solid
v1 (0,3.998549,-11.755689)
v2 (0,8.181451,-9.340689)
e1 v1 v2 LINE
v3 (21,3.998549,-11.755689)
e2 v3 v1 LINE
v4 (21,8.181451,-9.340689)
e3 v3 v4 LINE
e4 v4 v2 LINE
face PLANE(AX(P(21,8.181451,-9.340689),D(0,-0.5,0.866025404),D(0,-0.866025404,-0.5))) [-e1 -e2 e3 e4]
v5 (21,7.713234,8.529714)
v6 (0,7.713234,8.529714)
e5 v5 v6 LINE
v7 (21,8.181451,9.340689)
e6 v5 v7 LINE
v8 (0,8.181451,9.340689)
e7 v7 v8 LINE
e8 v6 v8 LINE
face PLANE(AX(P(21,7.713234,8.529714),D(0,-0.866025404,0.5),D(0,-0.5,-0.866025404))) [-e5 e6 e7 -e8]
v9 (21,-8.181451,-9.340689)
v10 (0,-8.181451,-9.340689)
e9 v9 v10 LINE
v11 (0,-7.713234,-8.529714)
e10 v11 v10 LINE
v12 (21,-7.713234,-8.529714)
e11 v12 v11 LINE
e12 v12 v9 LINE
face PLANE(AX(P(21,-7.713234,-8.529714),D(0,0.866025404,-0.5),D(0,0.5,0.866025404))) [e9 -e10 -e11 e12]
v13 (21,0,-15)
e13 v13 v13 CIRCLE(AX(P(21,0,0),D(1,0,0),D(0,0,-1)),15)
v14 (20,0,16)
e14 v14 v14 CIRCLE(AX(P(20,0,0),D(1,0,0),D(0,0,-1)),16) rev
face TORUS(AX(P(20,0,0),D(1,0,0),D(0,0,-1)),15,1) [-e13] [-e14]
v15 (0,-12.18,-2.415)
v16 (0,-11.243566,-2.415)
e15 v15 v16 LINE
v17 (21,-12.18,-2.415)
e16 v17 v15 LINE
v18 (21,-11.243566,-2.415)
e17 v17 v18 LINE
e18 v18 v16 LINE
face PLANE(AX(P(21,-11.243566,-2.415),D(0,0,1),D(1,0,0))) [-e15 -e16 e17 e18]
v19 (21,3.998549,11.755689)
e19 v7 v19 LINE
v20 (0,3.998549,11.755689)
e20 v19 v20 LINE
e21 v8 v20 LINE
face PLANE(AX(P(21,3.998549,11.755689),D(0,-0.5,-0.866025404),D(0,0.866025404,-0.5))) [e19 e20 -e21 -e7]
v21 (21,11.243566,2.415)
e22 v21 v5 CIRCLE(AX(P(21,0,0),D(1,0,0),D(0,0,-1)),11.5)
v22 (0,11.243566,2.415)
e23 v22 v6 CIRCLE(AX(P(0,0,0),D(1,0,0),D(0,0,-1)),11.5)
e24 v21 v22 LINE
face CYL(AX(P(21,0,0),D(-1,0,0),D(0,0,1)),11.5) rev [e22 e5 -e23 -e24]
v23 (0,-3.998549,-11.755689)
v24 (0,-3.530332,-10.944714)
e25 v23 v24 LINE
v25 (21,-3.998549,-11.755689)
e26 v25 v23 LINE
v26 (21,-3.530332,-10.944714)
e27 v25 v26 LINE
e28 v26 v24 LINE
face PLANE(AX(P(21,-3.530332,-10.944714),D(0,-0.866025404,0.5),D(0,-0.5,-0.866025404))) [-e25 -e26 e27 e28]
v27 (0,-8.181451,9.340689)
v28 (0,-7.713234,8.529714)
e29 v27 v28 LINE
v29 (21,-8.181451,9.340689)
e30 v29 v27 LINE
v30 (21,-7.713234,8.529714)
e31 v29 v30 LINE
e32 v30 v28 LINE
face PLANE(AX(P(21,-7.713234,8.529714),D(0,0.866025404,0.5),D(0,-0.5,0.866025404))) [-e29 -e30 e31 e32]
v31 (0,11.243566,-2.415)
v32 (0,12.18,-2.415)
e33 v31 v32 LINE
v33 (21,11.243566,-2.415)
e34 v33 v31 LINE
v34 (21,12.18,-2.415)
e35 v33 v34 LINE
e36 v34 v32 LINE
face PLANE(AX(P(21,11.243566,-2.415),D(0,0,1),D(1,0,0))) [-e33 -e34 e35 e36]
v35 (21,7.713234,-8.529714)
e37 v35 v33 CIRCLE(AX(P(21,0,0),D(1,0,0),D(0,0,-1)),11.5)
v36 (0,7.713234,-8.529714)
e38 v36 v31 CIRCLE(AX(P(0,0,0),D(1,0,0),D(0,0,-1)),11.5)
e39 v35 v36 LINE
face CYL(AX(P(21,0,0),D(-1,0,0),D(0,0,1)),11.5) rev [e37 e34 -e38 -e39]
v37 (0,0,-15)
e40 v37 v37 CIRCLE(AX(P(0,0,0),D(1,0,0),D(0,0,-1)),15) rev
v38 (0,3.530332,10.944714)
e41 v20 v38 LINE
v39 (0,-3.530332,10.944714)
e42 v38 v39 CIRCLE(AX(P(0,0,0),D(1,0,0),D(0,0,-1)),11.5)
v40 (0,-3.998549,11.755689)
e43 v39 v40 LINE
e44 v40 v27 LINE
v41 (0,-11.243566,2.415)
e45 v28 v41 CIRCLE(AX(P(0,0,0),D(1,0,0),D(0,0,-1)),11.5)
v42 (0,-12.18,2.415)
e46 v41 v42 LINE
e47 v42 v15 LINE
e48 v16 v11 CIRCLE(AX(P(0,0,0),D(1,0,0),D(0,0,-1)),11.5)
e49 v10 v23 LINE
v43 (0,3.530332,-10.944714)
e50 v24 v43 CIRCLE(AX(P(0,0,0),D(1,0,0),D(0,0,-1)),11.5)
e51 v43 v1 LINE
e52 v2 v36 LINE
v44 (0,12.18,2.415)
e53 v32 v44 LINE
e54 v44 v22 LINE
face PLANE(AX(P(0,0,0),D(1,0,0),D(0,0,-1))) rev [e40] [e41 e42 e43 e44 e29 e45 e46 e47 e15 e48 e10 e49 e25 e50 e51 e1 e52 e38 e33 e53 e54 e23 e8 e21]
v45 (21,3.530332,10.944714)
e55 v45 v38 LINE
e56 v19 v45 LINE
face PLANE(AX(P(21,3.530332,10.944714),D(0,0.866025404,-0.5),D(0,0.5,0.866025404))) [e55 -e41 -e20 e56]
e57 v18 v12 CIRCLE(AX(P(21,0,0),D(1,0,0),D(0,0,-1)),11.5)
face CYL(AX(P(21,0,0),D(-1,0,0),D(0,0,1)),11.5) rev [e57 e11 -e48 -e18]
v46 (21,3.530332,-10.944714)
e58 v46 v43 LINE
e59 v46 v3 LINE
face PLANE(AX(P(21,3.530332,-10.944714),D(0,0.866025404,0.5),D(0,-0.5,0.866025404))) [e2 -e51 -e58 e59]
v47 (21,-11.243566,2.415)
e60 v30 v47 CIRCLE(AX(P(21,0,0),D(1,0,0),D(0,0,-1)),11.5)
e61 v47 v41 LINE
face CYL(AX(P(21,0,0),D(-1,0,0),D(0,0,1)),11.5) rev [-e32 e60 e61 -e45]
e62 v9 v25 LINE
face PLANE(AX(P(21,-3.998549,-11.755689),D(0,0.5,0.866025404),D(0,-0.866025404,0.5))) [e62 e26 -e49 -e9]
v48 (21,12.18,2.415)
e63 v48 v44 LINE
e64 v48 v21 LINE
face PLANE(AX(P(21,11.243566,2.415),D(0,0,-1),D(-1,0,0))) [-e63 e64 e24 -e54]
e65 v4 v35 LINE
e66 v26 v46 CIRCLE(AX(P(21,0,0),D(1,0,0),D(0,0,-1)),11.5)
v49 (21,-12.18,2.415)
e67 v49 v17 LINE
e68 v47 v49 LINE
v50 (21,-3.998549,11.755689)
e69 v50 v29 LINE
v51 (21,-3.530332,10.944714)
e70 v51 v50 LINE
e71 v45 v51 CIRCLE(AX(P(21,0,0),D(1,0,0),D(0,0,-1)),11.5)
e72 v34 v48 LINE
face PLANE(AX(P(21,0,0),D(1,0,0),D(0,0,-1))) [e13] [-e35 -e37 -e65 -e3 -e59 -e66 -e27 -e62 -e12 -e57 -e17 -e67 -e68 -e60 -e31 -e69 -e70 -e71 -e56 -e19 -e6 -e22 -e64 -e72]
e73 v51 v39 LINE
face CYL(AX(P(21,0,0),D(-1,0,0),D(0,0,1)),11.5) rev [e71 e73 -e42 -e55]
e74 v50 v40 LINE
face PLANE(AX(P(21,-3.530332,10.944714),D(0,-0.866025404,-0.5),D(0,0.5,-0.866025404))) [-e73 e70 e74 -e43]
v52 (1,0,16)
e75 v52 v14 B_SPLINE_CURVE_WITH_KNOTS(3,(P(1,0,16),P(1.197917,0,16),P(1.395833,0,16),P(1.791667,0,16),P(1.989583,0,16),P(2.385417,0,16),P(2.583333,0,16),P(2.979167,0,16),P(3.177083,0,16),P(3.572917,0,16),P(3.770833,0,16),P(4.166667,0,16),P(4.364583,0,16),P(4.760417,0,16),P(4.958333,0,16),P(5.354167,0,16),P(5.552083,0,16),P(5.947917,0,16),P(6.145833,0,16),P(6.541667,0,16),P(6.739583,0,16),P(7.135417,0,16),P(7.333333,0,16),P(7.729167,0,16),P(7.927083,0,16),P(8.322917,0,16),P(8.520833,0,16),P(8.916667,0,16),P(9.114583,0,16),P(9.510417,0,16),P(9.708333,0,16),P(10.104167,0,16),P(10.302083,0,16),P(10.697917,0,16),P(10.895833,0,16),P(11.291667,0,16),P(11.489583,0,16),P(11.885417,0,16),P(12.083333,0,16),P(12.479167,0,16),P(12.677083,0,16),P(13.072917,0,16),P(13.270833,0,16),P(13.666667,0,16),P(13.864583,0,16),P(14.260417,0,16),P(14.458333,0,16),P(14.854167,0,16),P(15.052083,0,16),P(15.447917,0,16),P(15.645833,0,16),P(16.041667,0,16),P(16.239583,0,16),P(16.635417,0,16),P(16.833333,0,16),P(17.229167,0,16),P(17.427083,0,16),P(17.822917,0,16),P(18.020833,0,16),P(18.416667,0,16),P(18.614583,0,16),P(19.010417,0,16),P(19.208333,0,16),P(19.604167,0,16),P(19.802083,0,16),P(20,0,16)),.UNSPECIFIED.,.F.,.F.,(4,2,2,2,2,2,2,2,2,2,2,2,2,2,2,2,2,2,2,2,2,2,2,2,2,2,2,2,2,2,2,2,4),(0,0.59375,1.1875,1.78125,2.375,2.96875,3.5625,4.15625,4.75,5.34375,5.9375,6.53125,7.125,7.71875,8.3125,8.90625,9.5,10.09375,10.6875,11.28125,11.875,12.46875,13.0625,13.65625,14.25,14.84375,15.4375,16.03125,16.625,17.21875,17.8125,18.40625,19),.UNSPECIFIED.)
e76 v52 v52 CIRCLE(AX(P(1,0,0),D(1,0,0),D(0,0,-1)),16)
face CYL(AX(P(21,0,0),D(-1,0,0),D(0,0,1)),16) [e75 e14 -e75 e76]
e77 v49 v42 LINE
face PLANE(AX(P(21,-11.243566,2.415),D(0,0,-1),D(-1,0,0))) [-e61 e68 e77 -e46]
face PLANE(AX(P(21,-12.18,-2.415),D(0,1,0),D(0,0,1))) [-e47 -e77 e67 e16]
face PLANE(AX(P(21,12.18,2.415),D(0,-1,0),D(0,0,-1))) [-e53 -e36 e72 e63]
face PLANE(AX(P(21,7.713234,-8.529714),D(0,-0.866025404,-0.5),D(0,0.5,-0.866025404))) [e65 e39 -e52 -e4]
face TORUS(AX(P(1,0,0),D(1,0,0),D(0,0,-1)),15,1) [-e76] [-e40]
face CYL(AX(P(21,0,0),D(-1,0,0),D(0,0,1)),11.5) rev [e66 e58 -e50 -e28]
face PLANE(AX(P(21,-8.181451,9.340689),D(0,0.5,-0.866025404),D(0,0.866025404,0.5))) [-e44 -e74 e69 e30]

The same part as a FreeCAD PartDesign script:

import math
import FreeCAD as App
import Part
import Sketcher
from FreeCAD import Vector
Q = App.Units.Quantity


def edges_at(feature, points):
    """Names of the edges that pass closest to the given points."""
    edges = feature.Shape.Edges
    near = lambda p: min(range(len(edges)), key=lambda i: edges[i].distToShape(Part.Vertex(*p))[0])
    return sorted({f"Edge{near(p) + 1}" for p in points})

doc = App.newDocument("Part")
params = doc.addObject("Spreadsheet::Sheet", "Params")
for row, (alias, value) in enumerate([
    ("sketch1_diameter", "32 mm"),
    ("sketch1_radius", "11.5 mm"),
    ("sketch1_height", "4.83 mm"),
    ("sketch1_length", "4.83 mm"),
    ("pad1_length", "21 mm"),
    ("fillet_radius", "1 mm"),
], start=1):
    params.set(f"A{row}", alias)
    params.set(f"B{row}", "=" + value)
    params.setAlias(f"B{row}", alias)

body = doc.addObject("PartDesign::Body", "Body")

# Sketch on YZ plane
sketch1 = doc.addObject("Sketcher::SketchObject", "Sketch")
body.addObject(sketch1)
sketch1.AttachmentSupport = (doc.YZ_Plane, [""])
sketch1.MapMode = "FlatFace"
sketch1.addGeometry([
    Part.Circle(Vector(0, 0, 0), Vector(0, 0, 1), 16),  # 0
    Part.LineSegment(Vector(7.713234, -8.529714, 0), Vector(8.181451, -9.340689, 0)),  # 1
    Part.LineSegment(Vector(8.181451, -9.340689, 0), Vector(3.998549, -11.755689, 0)),  # 2
    Part.LineSegment(Vector(3.998549, -11.755689, 0), Vector(3.530332, -10.944714, 0)),  # 3
    Part.ArcOfCircle(Part.Circle(Vector(0, 0, 0), Vector(0, 0, 1), 11.5), math.radians(-107.877648), math.radians(-72.122352)),  # 4
    Part.LineSegment(Vector(-3.530332, -10.944714, 0), Vector(-3.998549, -11.755689, 0)),  # 5
    Part.LineSegment(Vector(-3.998549, -11.755689, 0), Vector(-8.181451, -9.340689, 0)),  # 6
    Part.LineSegment(Vector(-8.181451, -9.340689, 0), Vector(-7.713234, -8.529714, 0)),  # 7
    Part.ArcOfCircle(Part.Circle(Vector(0, 0, 0), Vector(0, 0, 1), 11.5), math.radians(-167.877648), math.radians(-132.122352)),  # 8
    Part.LineSegment(Vector(-11.243566, -2.415, 0), Vector(-12.18, -2.415, 0)),  # 9
    Part.LineSegment(Vector(-12.18, -2.415, 0), Vector(-12.18, 2.415, 0)),  # 10
    Part.LineSegment(Vector(-12.18, 2.415, 0), Vector(-11.243566, 2.415, 0)),  # 11
    Part.ArcOfCircle(Part.Circle(Vector(0, 0, 0), Vector(0, 0, 1), 11.5), math.radians(132.122352), math.radians(167.877648)),  # 12
    Part.LineSegment(Vector(-7.713234, 8.529714, 0), Vector(-8.181451, 9.340689, 0)),  # 13
    Part.LineSegment(Vector(-8.181451, 9.340689, 0), Vector(-3.998549, 11.755689, 0)),  # 14
    Part.LineSegment(Vector(-3.998549, 11.755689, 0), Vector(-3.530332, 10.944714, 0)),  # 15
    Part.ArcOfCircle(Part.Circle(Vector(0, 0, 0), Vector(0, 0, 1), 11.5), math.radians(72.122352), math.radians(107.877648)),  # 16
    Part.LineSegment(Vector(3.530332, 10.944714, 0), Vector(3.998549, 11.755689, 0)),  # 17
    Part.LineSegment(Vector(3.998549, 11.755689, 0), Vector(8.181451, 9.340689, 0)),  # 18
    Part.LineSegment(Vector(8.181451, 9.340689, 0), Vector(7.713234, 8.529714, 0)),  # 19
    Part.ArcOfCircle(Part.Circle(Vector(0, 0, 0), Vector(0, 0, 1), 11.5), math.radians(12.122352), math.radians(47.877648)),  # 20
    Part.LineSegment(Vector(11.243566, 2.415, 0), Vector(12.18, 2.415, 0)),  # 21
    Part.LineSegment(Vector(12.18, 2.415, 0), Vector(12.18, -2.415, 0)),  # 22
    Part.LineSegment(Vector(12.18, -2.415, 0), Vector(11.243566, -2.415, 0)),  # 23
    Part.ArcOfCircle(Part.Circle(Vector(0, 0, 0), Vector(0, 0, 1), 11.5), math.radians(-47.877648), math.radians(-12.122352)),  # 24
], False)
sketch1.addConstraint([
    Sketcher.Constraint("Coincident", 1, 2, 2, 1),
    Sketcher.Constraint("Coincident", 2, 2, 3, 1),
    Sketcher.Constraint("Coincident", 3, 2, 4, 2),
    Sketcher.Constraint("Coincident", 4, 1, 5, 1),
    Sketcher.Constraint("Coincident", 5, 2, 6, 1),
    Sketcher.Constraint("Coincident", 6, 2, 7, 1),
    Sketcher.Constraint("Coincident", 7, 2, 8, 2),
    Sketcher.Constraint("Coincident", 8, 1, 9, 1),
    Sketcher.Constraint("Coincident", 9, 2, 10, 1),
    Sketcher.Constraint("Coincident", 10, 2, 11, 1),
    Sketcher.Constraint("Coincident", 11, 2, 12, 2),
    Sketcher.Constraint("Coincident", 12, 1, 13, 1),
    Sketcher.Constraint("Coincident", 13, 2, 14, 1),
    Sketcher.Constraint("Coincident", 14, 2, 15, 1),
    Sketcher.Constraint("Coincident", 15, 2, 16, 2),
    Sketcher.Constraint("Coincident", 16, 1, 17, 1),
    Sketcher.Constraint("Coincident", 17, 2, 18, 1),
    Sketcher.Constraint("Coincident", 18, 2, 19, 1),
    Sketcher.Constraint("Coincident", 19, 2, 20, 2),
    Sketcher.Constraint("Coincident", 20, 1, 21, 1),
    Sketcher.Constraint("Coincident", 21, 2, 22, 1),
    Sketcher.Constraint("Coincident", 22, 2, 23, 1),
    Sketcher.Constraint("Coincident", 23, 2, 24, 2),
    Sketcher.Constraint("Coincident", 24, 1, 1, 1),
    Sketcher.Constraint("Horizontal", 9),
    Sketcher.Constraint("Vertical", 10),
    Sketcher.Constraint("Horizontal", 11),
    Sketcher.Constraint("Horizontal", 21),
    Sketcher.Constraint("Vertical", 22),
    Sketcher.Constraint("Horizontal", 23),
    Sketcher.Constraint("Coincident", 0, 3, -1, 1),
    Sketcher.Constraint("Coincident", 4, 3, -1, 1),
    Sketcher.Constraint("Coincident", 8, 3, -1, 1),
    Sketcher.Constraint("Coincident", 12, 3, -1, 1),
    Sketcher.Constraint("Coincident", 16, 3, -1, 1),
    Sketcher.Constraint("Coincident", 20, 3, -1, 1),
    Sketcher.Constraint("Coincident", 24, 3, -1, 1),
    Sketcher.Constraint("Equal", 4, 8),
    Sketcher.Constraint("Equal", 8, 12),
    Sketcher.Constraint("Equal", 12, 16),
    Sketcher.Constraint("Equal", 16, 20),
    Sketcher.Constraint("Equal", 20, 24),
    Sketcher.Constraint("Symmetric", 1, 2, 13, 2, -1, 1),
    Sketcher.Constraint("Symmetric", 2, 2, 14, 2, -1, 1),
    Sketcher.Constraint("Symmetric", 5, 2, 17, 2, -1, 1),
    Sketcher.Constraint("Symmetric", 6, 2, 18, 2, -1, 1),
    Sketcher.Constraint("Symmetric", 9, 2, 21, 2, -1, 1),
    Sketcher.Constraint("Symmetric", 2, 2, 5, 2, -2),
    Sketcher.Constraint("Symmetric", 1, 2, 6, 2, -2),
    Sketcher.Constraint("Perpendicular", 1, 2),
    Sketcher.Constraint("Perpendicular", 2, 3),
    Sketcher.Constraint("Perpendicular", 5, 6),
    Sketcher.Constraint("Perpendicular", 6, 7),
    Sketcher.Constraint("Parallel", 3, 13),
    Sketcher.Constraint("Perpendicular", 14, 15),
    Sketcher.Constraint("Parallel", 7, 17),
    Sketcher.Constraint("Perpendicular", 18, 19),
    Sketcher.Constraint("Horizontal", 11, 2, 20, 1),
    Sketcher.Constraint("Horizontal", 9, 2, 22, 2),
    Sketcher.Constraint("Equal", 1, 3),
    Sketcher.Constraint("Diameter", 0, 32.0),
    Sketcher.Constraint("Radius", 4, 11.5),
    Sketcher.Constraint("Angle", 1, Q("-60 deg")),
    Sketcher.Constraint("DistanceY", 10, 1, 10, 2, 4.83),
    Sketcher.Constraint("Distance", 2, 4.83),
    Sketcher.Constraint("DistanceX", 9, 2, -1, 1, 12.18),
    Sketcher.Constraint("DistanceX", -1, 1, 1, 2, 8.181451),
])
sketch1.setExpression("Constraints[60]", "Params.sketch1_diameter")
sketch1.setExpression("Constraints[61]", "Params.sketch1_radius")
sketch1.setExpression("Constraints[63]", "Params.sketch1_height")
sketch1.setExpression("Constraints[64]", "Params.sketch1_length")
pad1 = doc.addObject("PartDesign::Pad", "Pad")
body.addObject(pad1)
pad1.Profile = sketch1
pad1.setExpression("Length", "Params.pad1_length")
doc.recompute()

fillet = doc.addObject("PartDesign::Fillet", "Fillet")
body.addObject(fillet)
fillet.Base = (pad1, edges_at(pad1, [(0, 0, -16), (21, 0, -16)]))
fillet.setExpression("Radius", "Params.fillet_radius")

doc.recompute()
